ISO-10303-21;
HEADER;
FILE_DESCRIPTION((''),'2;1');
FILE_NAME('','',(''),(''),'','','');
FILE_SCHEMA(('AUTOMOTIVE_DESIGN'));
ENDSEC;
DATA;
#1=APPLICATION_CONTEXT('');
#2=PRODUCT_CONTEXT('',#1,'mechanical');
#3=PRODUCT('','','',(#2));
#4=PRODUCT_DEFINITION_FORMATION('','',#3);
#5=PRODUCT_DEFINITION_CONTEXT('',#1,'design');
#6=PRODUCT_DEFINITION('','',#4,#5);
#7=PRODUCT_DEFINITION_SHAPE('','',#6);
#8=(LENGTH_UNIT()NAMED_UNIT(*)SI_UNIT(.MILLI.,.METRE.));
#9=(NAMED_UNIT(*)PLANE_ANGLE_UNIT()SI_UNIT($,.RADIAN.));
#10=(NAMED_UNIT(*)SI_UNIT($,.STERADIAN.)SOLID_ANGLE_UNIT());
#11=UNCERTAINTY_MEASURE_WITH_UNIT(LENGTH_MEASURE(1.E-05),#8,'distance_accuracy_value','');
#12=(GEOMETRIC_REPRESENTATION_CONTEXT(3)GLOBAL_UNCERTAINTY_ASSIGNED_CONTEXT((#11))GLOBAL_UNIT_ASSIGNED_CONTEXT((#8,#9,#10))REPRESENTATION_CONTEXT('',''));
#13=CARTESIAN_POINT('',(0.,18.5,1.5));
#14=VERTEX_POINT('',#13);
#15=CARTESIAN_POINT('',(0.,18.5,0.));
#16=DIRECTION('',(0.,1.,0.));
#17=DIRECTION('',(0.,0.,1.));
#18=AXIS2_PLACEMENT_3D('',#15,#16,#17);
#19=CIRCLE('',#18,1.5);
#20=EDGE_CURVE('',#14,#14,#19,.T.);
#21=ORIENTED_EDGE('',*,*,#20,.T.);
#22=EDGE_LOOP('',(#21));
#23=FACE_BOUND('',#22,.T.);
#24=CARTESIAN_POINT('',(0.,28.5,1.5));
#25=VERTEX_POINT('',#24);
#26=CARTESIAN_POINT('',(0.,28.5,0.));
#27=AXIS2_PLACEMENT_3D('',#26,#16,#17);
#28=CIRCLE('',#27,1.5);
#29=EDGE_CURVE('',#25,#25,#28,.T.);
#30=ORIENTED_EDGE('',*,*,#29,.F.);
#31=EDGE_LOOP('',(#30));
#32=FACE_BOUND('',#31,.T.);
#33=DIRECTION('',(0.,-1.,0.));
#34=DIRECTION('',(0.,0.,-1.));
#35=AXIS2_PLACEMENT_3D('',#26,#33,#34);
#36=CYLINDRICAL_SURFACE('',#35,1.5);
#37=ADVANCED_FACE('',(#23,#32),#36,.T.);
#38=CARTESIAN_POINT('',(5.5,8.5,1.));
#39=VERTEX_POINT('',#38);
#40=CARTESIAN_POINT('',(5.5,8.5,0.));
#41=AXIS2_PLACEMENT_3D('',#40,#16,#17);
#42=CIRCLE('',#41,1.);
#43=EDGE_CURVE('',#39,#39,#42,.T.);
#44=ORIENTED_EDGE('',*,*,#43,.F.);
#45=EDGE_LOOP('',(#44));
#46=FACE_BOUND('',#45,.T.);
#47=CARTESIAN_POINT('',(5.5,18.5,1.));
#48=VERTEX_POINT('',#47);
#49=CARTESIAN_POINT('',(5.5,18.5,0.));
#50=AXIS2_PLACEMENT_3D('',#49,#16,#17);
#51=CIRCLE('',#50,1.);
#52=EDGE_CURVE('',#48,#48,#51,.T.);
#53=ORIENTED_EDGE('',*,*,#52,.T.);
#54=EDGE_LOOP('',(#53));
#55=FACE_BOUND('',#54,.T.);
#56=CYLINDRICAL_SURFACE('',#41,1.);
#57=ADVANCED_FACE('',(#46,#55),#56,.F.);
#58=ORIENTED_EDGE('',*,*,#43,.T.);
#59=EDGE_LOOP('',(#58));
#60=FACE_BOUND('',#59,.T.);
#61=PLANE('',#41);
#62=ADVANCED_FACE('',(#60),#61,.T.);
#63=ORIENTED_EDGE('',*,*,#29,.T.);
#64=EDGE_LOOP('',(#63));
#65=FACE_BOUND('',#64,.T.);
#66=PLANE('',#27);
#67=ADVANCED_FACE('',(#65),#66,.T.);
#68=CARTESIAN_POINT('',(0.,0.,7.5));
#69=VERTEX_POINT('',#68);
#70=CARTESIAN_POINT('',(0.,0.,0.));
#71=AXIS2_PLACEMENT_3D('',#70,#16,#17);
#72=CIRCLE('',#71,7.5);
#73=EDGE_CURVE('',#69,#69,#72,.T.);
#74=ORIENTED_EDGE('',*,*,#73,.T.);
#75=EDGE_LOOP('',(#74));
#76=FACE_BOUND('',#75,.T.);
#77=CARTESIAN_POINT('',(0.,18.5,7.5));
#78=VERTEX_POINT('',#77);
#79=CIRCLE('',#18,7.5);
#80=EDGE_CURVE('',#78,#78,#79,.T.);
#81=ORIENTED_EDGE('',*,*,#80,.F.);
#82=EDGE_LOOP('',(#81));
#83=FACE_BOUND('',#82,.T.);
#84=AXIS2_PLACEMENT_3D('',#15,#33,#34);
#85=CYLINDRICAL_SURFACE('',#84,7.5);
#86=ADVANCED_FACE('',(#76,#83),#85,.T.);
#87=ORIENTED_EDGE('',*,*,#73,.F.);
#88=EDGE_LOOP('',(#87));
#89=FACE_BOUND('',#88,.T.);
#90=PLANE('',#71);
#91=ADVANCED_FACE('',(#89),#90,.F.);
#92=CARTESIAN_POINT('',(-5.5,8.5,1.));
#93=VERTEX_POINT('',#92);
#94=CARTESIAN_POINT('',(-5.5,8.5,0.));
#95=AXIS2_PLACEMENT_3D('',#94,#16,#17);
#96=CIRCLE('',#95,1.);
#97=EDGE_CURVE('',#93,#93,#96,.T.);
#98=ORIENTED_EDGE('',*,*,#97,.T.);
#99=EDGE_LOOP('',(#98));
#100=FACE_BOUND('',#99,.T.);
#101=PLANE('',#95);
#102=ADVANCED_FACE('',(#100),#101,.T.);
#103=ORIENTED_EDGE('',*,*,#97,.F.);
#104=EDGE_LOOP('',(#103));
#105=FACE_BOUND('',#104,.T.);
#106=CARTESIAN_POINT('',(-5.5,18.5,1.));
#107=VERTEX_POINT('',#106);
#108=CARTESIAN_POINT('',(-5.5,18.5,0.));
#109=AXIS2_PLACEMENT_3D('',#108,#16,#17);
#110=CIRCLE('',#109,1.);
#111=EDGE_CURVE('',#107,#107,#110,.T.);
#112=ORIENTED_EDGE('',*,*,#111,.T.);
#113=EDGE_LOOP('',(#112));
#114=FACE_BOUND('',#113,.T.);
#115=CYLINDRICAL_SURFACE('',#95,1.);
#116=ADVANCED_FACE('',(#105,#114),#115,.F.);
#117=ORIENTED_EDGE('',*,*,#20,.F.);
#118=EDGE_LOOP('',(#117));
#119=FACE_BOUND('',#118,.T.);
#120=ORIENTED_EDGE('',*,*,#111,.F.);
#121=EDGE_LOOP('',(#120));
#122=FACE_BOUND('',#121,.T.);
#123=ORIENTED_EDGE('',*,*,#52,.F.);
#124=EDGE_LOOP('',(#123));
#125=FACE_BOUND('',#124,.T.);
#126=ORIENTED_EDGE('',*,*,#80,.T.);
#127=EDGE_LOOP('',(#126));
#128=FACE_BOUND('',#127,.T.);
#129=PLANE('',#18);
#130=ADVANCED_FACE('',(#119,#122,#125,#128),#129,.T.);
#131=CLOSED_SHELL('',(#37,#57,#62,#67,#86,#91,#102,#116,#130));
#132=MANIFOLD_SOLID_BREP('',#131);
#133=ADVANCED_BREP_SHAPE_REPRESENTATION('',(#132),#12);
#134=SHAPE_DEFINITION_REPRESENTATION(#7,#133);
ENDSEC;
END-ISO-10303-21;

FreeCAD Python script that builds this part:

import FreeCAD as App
import Part
import Sketcher
from FreeCAD import Vector

doc = App.newDocument("Part")
body = doc.addObject("PartDesign::Body", "Body")

# Sketch on XZ plane
sketch1 = body.newObject("Sketcher::SketchObject", "Sketch")
sketch1.AttachmentSupport = (doc.getObject("XZ_Plane"), [""])
sketch1.MapMode = "FlatFace"
sketch1.addGeometry(Part.Circle(Vector(0, 0, 0), Vector(0, 0, 1), 8), False)
sketch1.addConstraint([
    Sketcher.Constraint("Coincident", 0, 3, -1, 1),
    Sketcher.Constraint("Diameter", 0, 15.0),
])
pad1 = body.newObject("PartDesign::Pad", "Pad")
pad1.Profile = sketch1
pad1.Length = 18.5
pad1.Reversed = True

# Sketch on XZ plane
sketch2 = body.newObject("Sketcher::SketchObject", "Sketch001")
sketch2.AttachmentSupport = (doc.getObject("XZ_Plane"), [""])
sketch2.MapMode = "FlatFace"
sketch2.AttachmentOffset = App.Placement(Vector(0, 0, -18.5), App.Rotation())
sketch2.addGeometry(Part.Circle(Vector(0, 0, 0), Vector(0, 0, 1), 1.5), False)
sketch2.addConstraint([
    Sketcher.Constraint("Coincident", 0, 3, -1, 1),
    Sketcher.Constraint("Diameter", 0, 3.0),
])
pad2 = body.newObject("PartDesign::Pad", "Pad001")
pad2.Profile = sketch2
pad2.Length = 10
pad2.Reversed = True

# Sketch on XZ plane
sketch3 = body.newObject("Sketcher::SketchObject", "Sketch002")
sketch3.AttachmentSupport = (doc.getObject("XZ_Plane"), [""])
sketch3.MapMode = "FlatFace"
sketch3.AttachmentOffset = App.Placement(Vector(0, 0, -18.5), App.Rotation())
sketch3.addGeometry([
    Part.Circle(Vector(-5.5, 0, 0), Vector(0, 0, 1), 1),
    Part.Circle(Vector(5.5, 0, 0), Vector(0, 0, 1), 1),
], False)
sketch3.addConstraint([
    Sketcher.Constraint("Equal", 0, 1),
    Sketcher.Constraint("Symmetric", 0, 3, 1, 3, -1, 1),
    Sketcher.Constraint("PointOnObject", 0, 3, -1),
    Sketcher.Constraint("Diameter", 0, 2.0),
    Sketcher.Constraint("DistanceX", 0, 3, 1, 3, 11.0),
])
pocket1 = body.newObject("PartDesign::Pocket", "Pocket")
pocket1.Profile = sketch3
pocket1.Length = 10
pocket1.Reversed = True

doc.recompute()
